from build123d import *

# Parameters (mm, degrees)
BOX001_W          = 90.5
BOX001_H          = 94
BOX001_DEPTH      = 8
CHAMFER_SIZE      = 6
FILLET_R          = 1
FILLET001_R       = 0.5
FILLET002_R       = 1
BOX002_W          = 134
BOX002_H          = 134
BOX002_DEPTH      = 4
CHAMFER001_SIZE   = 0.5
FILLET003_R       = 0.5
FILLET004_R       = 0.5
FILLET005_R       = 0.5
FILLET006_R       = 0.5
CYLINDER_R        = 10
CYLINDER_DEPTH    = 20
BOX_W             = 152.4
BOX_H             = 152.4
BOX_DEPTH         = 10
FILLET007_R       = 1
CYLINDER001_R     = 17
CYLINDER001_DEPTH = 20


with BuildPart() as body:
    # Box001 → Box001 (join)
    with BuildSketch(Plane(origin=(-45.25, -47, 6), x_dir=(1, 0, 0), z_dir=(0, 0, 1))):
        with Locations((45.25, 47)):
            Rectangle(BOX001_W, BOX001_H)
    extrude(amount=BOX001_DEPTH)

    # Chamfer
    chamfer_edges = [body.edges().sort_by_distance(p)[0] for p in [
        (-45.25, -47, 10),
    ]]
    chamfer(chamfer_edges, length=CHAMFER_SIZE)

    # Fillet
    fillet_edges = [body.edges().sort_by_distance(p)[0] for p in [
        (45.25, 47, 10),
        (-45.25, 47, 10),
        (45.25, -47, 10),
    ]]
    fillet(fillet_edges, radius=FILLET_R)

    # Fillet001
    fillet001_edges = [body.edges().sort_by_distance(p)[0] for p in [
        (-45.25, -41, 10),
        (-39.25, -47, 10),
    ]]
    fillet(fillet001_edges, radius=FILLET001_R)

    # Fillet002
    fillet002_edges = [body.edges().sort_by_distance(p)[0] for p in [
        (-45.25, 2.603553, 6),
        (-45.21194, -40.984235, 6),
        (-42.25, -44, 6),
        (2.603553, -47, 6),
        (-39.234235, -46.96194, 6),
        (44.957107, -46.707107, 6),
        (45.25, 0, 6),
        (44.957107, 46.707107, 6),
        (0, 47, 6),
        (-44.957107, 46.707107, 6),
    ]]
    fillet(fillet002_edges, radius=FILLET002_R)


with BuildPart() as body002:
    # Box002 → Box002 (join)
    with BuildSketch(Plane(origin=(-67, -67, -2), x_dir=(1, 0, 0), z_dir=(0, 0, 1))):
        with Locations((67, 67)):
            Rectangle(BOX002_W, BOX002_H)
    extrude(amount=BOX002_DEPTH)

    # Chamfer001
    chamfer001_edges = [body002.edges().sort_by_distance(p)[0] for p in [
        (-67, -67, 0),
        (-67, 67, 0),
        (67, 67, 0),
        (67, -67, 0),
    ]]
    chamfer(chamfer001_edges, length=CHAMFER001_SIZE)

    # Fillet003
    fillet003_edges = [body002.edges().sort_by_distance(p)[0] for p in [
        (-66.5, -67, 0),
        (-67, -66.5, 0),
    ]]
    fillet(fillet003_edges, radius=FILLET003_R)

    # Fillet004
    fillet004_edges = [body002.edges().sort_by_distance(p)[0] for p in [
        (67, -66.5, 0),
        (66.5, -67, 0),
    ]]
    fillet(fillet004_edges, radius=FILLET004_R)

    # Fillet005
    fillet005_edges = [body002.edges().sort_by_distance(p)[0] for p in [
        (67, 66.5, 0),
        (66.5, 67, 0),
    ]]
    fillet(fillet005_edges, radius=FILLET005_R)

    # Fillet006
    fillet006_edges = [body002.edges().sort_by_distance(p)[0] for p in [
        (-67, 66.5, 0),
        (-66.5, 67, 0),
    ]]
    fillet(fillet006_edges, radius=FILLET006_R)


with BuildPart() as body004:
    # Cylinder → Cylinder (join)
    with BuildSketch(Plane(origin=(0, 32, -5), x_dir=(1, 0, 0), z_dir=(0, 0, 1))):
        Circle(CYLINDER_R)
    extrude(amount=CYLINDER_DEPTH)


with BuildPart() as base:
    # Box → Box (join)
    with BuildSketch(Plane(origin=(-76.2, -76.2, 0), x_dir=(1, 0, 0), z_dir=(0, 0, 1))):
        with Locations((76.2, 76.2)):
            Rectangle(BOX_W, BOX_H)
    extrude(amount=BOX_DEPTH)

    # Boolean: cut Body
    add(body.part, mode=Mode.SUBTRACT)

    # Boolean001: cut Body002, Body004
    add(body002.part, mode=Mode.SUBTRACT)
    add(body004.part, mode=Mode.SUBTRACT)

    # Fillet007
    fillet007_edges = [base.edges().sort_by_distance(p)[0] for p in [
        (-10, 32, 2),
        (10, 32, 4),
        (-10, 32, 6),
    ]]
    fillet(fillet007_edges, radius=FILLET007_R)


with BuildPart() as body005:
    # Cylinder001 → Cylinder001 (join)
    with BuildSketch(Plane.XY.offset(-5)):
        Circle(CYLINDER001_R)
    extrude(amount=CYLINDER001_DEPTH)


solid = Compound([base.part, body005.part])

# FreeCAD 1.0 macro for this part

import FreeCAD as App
import Part
import Sketcher

V = App.Vector
Q = App.Units.Quantity


def edges_at(feature, points):
    """Names of the edges that pass closest to the given points."""
    edges = feature.Shape.Edges
    near = lambda p: min(range(len(edges)), key=lambda i: edges[i].distToShape(Part.Vertex(*p))[0])
    return sorted({f"Edge{near(p) + 1}" for p in points})

doc = App.newDocument("Part")
params = doc.addObject("Spreadsheet::Sheet", "Params")
for row, (alias, value) in enumerate([
    ("sketch1_height", "94 mm"),
    ("sketch1_width", "90.5 mm"),
    ("pad1_length", "8 mm"),
    ("chamfer_size", "6 mm"),
    ("fillet_radius", "1 mm"),
    ("fillet2_radius", "0.5 mm"),
    ("fillet3_radius", "1 mm"),
    ("sketch2_width", "134 mm"),
    ("pad2_length", "4 mm"),
    ("chamfer2_size", "0.5 mm"),
    ("fillet4_radius", "0.5 mm"),
    ("fillet5_radius", "0.5 mm"),
    ("fillet6_radius", "0.5 mm"),
    ("fillet7_radius", "0.5 mm"),
    ("sketch3_diameter", "20 mm"),
    ("pad3_length", "20 mm"),
    ("sketch4_width", "152.4 mm"),
    ("pad4_length", "10 mm"),
    ("fillet8_radius", "1 mm"),
    ("sketch5_diameter", "34 mm"),
    ("pad5_length", "20 mm"),
], start=1):
    params.set(f"A{row}", alias)
    params.set(f"B{row}", "=" + value)
    params.setAlias(f"B{row}", alias)

body = doc.addObject("PartDesign::Body", "Body")

# Sketch on XY plane
sketch1 = doc.addObject("Sketcher::SketchObject", "Sketch")
body.addObject(sketch1)
sketch1.AttachmentSupport = (doc.XY_Plane, [""])
sketch1.MapMode = "FlatFace"
sketch1.AttachmentOffset = App.Placement(V(0, 0, 6), App.Rotation())
sketch1.addGeometry([
    Part.LineSegment(V(-45, 47, 0), V(-45, -47, 0)),
    Part.LineSegment(V(-45, -47, 0), V(45, -47, 0)),
    Part.LineSegment(V(45, -47, 0), V(45, 47, 0)),
    Part.LineSegment(V(45, 47, 0), V(-45, 47, 0)),
], False)
sketch1.addConstraint([
    Sketcher.Constraint("Coincident", 0, 2, 1, 1),
    Sketcher.Constraint("Coincident", 1, 2, 2, 1),
    Sketcher.Constraint("Coincident", 2, 2, 3, 1),
    Sketcher.Constraint("Coincident", 3, 2, 0, 1),
    Sketcher.Constraint("Vertical", 0),
    Sketcher.Constraint("Horizontal", 1),
    Sketcher.Constraint("Vertical", 2),
    Sketcher.Constraint("Horizontal", 3),
    Sketcher.Constraint("Symmetric", 0, 2, 2, 2, -1, 1),
    Sketcher.Constraint("DistanceY", 0, 2, 0, 1, Q("94 mm")),
    Sketcher.Constraint("DistanceX", 1, 1, 1, 2, Q("90.5 mm")),
])
sketch1.setExpression("Constraints[9]", "Params.sketch1_height")
sketch1.setExpression("Constraints[10]", "Params.sketch1_width")
pad1 = doc.addObject("PartDesign::Pad", "Pad")
body.addObject(pad1)
pad1.Profile = sketch1
pad1.setExpression("Length", "Params.pad1_length")
doc.recompute()

chamfer = doc.addObject("PartDesign::Chamfer", "Chamfer")
body.addObject(chamfer)
chamfer.Base = (pad1, edges_at(pad1, [(-45.25, -47, 10)]))
chamfer.setExpression("Size", "Params.chamfer_size")
doc.recompute()

fillet = doc.addObject("PartDesign::Fillet", "Fillet")
body.addObject(fillet)
fillet.Base = (chamfer, edges_at(chamfer, [(45.25, 47, 10), (-45.25, 47, 10), (45.25, -47, 10)]))
fillet.setExpression("Radius", "Params.fillet_radius")
doc.recompute()

fillet2 = doc.addObject("PartDesign::Fillet", "Fillet001")
body.addObject(fillet2)
fillet2.Base = (fillet, edges_at(fillet, [(-45.25, -41, 10), (-39.25, -47, 10)]))
fillet2.setExpression("Radius", "Params.fillet2_radius")
doc.recompute()

fillet3 = doc.addObject("PartDesign::Fillet", "Fillet002")
body.addObject(fillet3)
fillet3.Base = (fillet2, edges_at(fillet2, [
    (-45.25, 2.604, 6),
    (-45.212, -40.984, 6),
    (-42.25, -44, 6),
    (2.604, -47, 6),
    (-39.234, -46.962, 6),
    (44.957, -46.707, 6),
    (45.25, 0, 6),
    (44.957, 46.707, 6),
    (0, 47, 6),
    (-44.957, 46.707, 6),
]))
fillet3.setExpression("Radius", "Params.fillet3_radius")
body2 = doc.addObject("PartDesign::Body", "Body001")

# Sketch on XY plane
sketch2 = doc.addObject("Sketcher::SketchObject", "Sketch001")
body2.addObject(sketch2)
sketch2.AttachmentSupport = (doc.getObject("XY_Plane001"), [""])
sketch2.MapMode = "FlatFace"
sketch2.AttachmentOffset = App.Placement(V(0, 0, -2), App.Rotation())
sketch2.addGeometry([
    Part.LineSegment(V(-67, 67, 0), V(-67, -67, 0)),
    Part.LineSegment(V(-67, -67, 0), V(67, -67, 0)),
    Part.LineSegment(V(67, -67, 0), V(67, 67, 0)),
    Part.LineSegment(V(67, 67, 0), V(-67, 67, 0)),
], False)
sketch2.addConstraint([
    Sketcher.Constraint("Coincident", 0, 2, 1, 1),
    Sketcher.Constraint("Coincident", 1, 2, 2, 1),
    Sketcher.Constraint("Coincident", 2, 2, 3, 1),
    Sketcher.Constraint("Coincident", 3, 2, 0, 1),
    Sketcher.Constraint("Vertical", 0),
    Sketcher.Constraint("Horizontal", 1),
    Sketcher.Constraint("Vertical", 2),
    Sketcher.Constraint("Horizontal", 3),
    Sketcher.Constraint("Symmetric", 0, 2, 2, 2, -1, 1),
    Sketcher.Constraint("Equal", 3, 0),
    Sketcher.Constraint("DistanceX", 1, 1, 1, 2, Q("134 mm")),
])
sketch2.setExpression("Constraints[10]", "Params.sketch2_width")
pad2 = doc.addObject("PartDesign::Pad", "Pad001")
body2.addObject(pad2)
pad2.Profile = sketch2
pad2.setExpression("Length", "Params.pad2_length")
doc.recompute()

chamfer2 = doc.addObject("PartDesign::Chamfer", "Chamfer001")
body2.addObject(chamfer2)
chamfer2.Base = (pad2, edges_at(pad2, [
    (-67, -67, 0),
    (-67, 67, 0),
    (67, 67, 0),
    (67, -67, 0),
]))
chamfer2.setExpression("Size", "Params.chamfer2_size")
doc.recompute()

fillet4 = doc.addObject("PartDesign::Fillet", "Fillet003")
body2.addObject(fillet4)
fillet4.Base = (chamfer2, edges_at(chamfer2, [(-66.5, -67, 0), (-67, -66.5, 0)]))
fillet4.setExpression("Radius", "Params.fillet4_radius")
doc.recompute()

fillet5 = doc.addObject("PartDesign::Fillet", "Fillet004")
body2.addObject(fillet5)
fillet5.Base = (fillet4, edges_at(fillet4, [(67, -66.5, 0), (66.5, -67, 0)]))
fillet5.setExpression("Radius", "Params.fillet5_radius")
doc.recompute()

fillet6 = doc.addObject("PartDesign::Fillet", "Fillet005")
body2.addObject(fillet6)
fillet6.Base = (fillet5, edges_at(fillet5, [(67, 66.5, 0), (66.5, 67, 0)]))
fillet6.setExpression("Radius", "Params.fillet6_radius")
doc.recompute()

fillet7 = doc.addObject("PartDesign::Fillet", "Fillet006")
body2.addObject(fillet7)
fillet7.Base = (fillet6, edges_at(fillet6, [(-67, 66.5, 0), (-66.5, 67, 0)]))
fillet7.setExpression("Radius", "Params.fillet7_radius")
body3 = doc.addObject("PartDesign::Body", "Body002")

# Sketch on XY plane
sketch3 = doc.addObject("Sketcher::SketchObject", "Sketch002")
body3.addObject(sketch3)
sketch3.AttachmentSupport = (doc.getObject("XY_Plane002"), [""])
sketch3.MapMode = "FlatFace"
sketch3.AttachmentOffset = App.Placement(V(0, 0, -5), App.Rotation())
sketch3.addGeometry(Part.Circle(V(0, 32, 0), V(0, 0, 1), 10), False)
sketch3.addConstraint([
    Sketcher.Constraint("PointOnObject", 0, 3, -2),
    Sketcher.Constraint("Diameter", 0, Q("20 mm")),
    Sketcher.Constraint("DistanceY", -1, 1, 0, 3, Q("32 mm")),
])
sketch3.setExpression("Constraints[1]", "Params.sketch3_diameter")
pad3 = doc.addObject("PartDesign::Pad", "Pad002")
body3.addObject(pad3)
pad3.Profile = sketch3
pad3.setExpression("Length", "Params.pad3_length")
body4 = doc.addObject("PartDesign::Body", "Body003")

# Sketch on XY plane
sketch4 = doc.addObject("Sketcher::SketchObject", "Sketch003")
body4.addObject(sketch4)
sketch4.AttachmentSupport = (doc.getObject("XY_Plane003"), [""])
sketch4.MapMode = "FlatFace"
sketch4.addGeometry([
    Part.LineSegment(V(-76, 76, 0), V(-76, -76, 0)),
    Part.LineSegment(V(-76, -76, 0), V(76, -76, 0)),
    Part.LineSegment(V(76, -76, 0), V(76, 76, 0)),
    Part.LineSegment(V(76, 76, 0), V(-76, 76, 0)),
], False)
sketch4.addConstraint([
    Sketcher.Constraint("Coincident", 0, 2, 1, 1),
    Sketcher.Constraint("Coincident", 1, 2, 2, 1),
    Sketcher.Constraint("Coincident", 2, 2, 3, 1),
    Sketcher.Constraint("Coincident", 3, 2, 0, 1),
    Sketcher.Constraint("Vertical", 0),
    Sketcher.Constraint("Horizontal", 1),
    Sketcher.Constraint("Vertical", 2),
    Sketcher.Constraint("Horizontal", 3),
    Sketcher.Constraint("Symmetric", 0, 2, 2, 2, -1, 1),
    Sketcher.Constraint("Equal", 3, 0),
    Sketcher.Constraint("DistanceX", 1, 1, 1, 2, Q("152.4 mm")),
])
sketch4.setExpression("Constraints[10]", "Params.sketch4_width")
pad4 = doc.addObject("PartDesign::Pad", "Pad003")
body4.addObject(pad4)
pad4.Profile = sketch4
pad4.setExpression("Length", "Params.pad4_length")
doc.recompute()

boolean = doc.addObject("PartDesign::Boolean", "Boolean")
body4.addObject(boolean)
boolean.Type = "Cut"
boolean.addObjects([body])
doc.recompute()

boolean2 = doc.addObject("PartDesign::Boolean", "Boolean001")
body4.addObject(boolean2)
boolean2.Type = "Cut"
boolean2.addObjects([body2])
doc.recompute()

boolean3 = doc.addObject("PartDesign::Boolean", "Boolean002")
body4.addObject(boolean3)
boolean3.Type = "Cut"
boolean3.addObjects([body3])
doc.recompute()

fillet8 = doc.addObject("PartDesign::Fillet", "Fillet007")
body4.addObject(fillet8)
fillet8.Base = (boolean3, edges_at(boolean3, [(-10, 32, 2), (10, 32, 4), (-10, 32, 6)]))
fillet8.setExpression("Radius", "Params.fillet8_radius")
body5 = doc.addObject("PartDesign::Body", "Body004")

# Sketch on XY plane
sketch5 = doc.addObject("Sketcher::SketchObject", "Sketch004")
body5.addObject(sketch5)
sketch5.AttachmentSupport = (doc.getObject("XY_Plane004"), [""])
sketch5.MapMode = "FlatFace"
sketch5.AttachmentOffset = App.Placement(V(0, 0, -5), App.Rotation())
sketch5.addGeometry(Part.Circle(V(0, 0, 0), V(0, 0, 1), 17), False)
sketch5.addConstraint([
    Sketcher.Constraint("Coincident", 0, 3, -1, 1),
    Sketcher.Constraint("Diameter", 0, Q("34 mm")),
])
sketch5.setExpression("Constraints[1]", "Params.sketch5_diameter")
pad5 = doc.addObject("PartDesign::Pad", "Pad004")
body5.addObject(pad5)
pad5.Profile = sketch5
pad5.setExpression("Length", "Params.pad5_length")

doc.recompute()
